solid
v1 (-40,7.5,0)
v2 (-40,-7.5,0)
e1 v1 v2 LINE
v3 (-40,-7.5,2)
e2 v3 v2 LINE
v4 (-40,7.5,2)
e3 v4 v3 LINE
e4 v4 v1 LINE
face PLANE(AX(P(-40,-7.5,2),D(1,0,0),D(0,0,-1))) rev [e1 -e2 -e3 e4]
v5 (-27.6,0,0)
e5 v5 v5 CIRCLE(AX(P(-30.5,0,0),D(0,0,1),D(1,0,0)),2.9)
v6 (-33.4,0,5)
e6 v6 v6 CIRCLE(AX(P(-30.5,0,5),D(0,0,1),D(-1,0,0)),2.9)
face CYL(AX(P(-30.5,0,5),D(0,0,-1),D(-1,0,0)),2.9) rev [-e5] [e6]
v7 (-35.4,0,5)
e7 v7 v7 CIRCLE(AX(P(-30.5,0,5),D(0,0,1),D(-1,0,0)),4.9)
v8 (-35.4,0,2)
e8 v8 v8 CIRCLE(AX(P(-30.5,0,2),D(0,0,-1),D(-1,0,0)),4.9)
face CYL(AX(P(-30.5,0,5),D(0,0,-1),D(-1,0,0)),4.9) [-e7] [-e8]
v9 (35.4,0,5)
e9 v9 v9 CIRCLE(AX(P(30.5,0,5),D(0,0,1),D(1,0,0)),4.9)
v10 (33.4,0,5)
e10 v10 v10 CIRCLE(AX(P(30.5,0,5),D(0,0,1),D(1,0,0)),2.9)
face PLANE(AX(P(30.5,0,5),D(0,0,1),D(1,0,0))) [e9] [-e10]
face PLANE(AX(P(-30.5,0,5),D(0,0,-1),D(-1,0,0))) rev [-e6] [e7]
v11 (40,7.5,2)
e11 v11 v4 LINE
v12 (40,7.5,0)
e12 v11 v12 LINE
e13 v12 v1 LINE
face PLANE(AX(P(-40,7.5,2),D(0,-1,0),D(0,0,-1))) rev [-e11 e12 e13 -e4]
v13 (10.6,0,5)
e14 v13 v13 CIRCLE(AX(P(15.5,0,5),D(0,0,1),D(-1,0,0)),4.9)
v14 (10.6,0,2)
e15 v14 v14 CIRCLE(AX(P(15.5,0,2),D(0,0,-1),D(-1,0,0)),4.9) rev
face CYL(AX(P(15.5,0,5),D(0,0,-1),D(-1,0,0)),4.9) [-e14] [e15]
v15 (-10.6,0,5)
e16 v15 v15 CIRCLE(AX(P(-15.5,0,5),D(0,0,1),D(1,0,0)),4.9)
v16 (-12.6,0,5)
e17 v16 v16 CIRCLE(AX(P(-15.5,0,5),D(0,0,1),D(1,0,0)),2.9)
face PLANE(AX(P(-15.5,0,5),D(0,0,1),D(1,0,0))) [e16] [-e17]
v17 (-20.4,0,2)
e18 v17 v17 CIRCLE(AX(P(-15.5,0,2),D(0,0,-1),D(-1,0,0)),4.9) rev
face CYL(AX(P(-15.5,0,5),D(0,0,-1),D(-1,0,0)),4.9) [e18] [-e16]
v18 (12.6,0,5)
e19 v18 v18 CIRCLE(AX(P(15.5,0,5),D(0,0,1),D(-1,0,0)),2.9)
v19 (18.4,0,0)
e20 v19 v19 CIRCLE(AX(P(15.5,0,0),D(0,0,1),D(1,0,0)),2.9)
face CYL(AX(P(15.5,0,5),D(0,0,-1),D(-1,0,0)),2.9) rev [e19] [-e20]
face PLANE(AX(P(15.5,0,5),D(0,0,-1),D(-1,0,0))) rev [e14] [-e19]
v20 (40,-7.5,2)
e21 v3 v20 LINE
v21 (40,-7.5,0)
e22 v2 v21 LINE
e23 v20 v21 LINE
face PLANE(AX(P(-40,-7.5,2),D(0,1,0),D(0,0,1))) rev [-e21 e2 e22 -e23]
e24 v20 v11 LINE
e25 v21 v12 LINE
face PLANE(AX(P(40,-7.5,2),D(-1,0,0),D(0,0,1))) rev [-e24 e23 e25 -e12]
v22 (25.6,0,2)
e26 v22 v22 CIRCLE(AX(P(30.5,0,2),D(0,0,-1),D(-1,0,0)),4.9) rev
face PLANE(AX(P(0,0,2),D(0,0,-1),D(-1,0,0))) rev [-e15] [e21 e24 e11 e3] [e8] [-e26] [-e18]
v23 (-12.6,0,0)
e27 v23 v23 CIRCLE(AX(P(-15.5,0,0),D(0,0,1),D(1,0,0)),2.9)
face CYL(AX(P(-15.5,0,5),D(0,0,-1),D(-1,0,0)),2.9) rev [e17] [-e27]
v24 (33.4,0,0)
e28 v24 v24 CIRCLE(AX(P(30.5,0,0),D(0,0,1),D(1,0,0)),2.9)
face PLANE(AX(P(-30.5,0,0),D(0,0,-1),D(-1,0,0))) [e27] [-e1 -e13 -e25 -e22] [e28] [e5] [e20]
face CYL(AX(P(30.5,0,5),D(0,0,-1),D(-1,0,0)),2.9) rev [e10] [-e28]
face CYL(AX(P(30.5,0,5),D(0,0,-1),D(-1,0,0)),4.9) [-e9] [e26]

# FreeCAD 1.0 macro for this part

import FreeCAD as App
import Part
import Sketcher
from FreeCAD import Vector

doc = App.newDocument("Part")
body = doc.addObject("PartDesign::Body", "Body")

# Sketch on XY plane
sketch1 = body.newObject("Sketcher::SketchObject", "Sketch")
sketch1.AttachmentSupport = (doc.getObject("XY_Plane"), [""])
sketch1.MapMode = "FlatFace"
sketch1.addGeometry([
    Part.Circle(Vector(-15.5, 0, 0), Vector(0, 0, 1), 4.9),
    Part.Circle(Vector(-15.5, 0, 0), Vector(0, 0, 1), 2.9),
], False)
sketch1.addConstraint([
    Sketcher.Constraint("Coincident", 1, 3, 0, 3),
    Sketcher.Constraint("PointOnObject", 0, 3, -1),
    Sketcher.Constraint("Diameter", 0, 9.8),
    Sketcher.Constraint("Diameter", 1, 5.8),
    Sketcher.Constraint("DistanceX", 0, 3, -1, 1, 15.5),
])
pad1 = body.newObject("PartDesign::Pad", "Pad")
pad1.Profile = sketch1
pad1.Length = 5
body2 = doc.addObject("PartDesign::Body", "Body001")

# Sketch on XY plane
sketch2 = body2.newObject("Sketcher::SketchObject", "Sketch001")
sketch2.AttachmentSupport = (doc.getObject("XY_Plane001"), [""])
sketch2.MapMode = "FlatFace"
sketch2.addGeometry([
    Part.Circle(Vector(-30.5, 0, 0), Vector(0, 0, 1), 4.9),
    Part.Circle(Vector(-30.5, 0, 0), Vector(0, 0, 1), 2.9),
], False)
sketch2.addConstraint([
    Sketcher.Constraint("Coincident", 1, 3, 0, 3),
    Sketcher.Constraint("PointOnObject", 0, 3, -1),
    Sketcher.Constraint("Diameter", 0, 9.8),
    Sketcher.Constraint("Diameter", 1, 5.8),
    Sketcher.Constraint("DistanceX", 0, 3, -1, 1, 30.5),
])
pad2 = body2.newObject("PartDesign::Pad", "Pad001")
pad2.Profile = sketch2
pad2.Length = 5
body3 = doc.addObject("PartDesign::Body", "Body002")

# Sketch on XY plane
sketch3 = body3.newObject("Sketcher::SketchObject", "Sketch002")
sketch3.AttachmentSupport = (doc.getObject("XY_Plane002"), [""])
sketch3.MapMode = "FlatFace"
sketch3.addGeometry([
    Part.Circle(Vector(15.5, 0, 0), Vector(0, 0, 1), 4.9),
    Part.Circle(Vector(15.5, 0, 0), Vector(0, 0, 1), 2.9),
], False)
sketch3.addConstraint([
    Sketcher.Constraint("Coincident", 1, 3, 0, 3),
    Sketcher.Constraint("PointOnObject", 0, 3, -1),
    Sketcher.Constraint("Diameter", 0, 9.8),
    Sketcher.Constraint("Diameter", 1, 5.8),
    Sketcher.Constraint("DistanceX", -1, 1, 0, 3, 15.5),
])
pad3 = body3.newObject("PartDesign::Pad", "Pad002")
pad3.Profile = sketch3
pad3.Length = 5
body4 = doc.addObject("PartDesign::Body", "Body003")

# Sketch on XY plane
sketch4 = body4.newObject("Sketcher::SketchObject", "Sketch003")
sketch4.AttachmentSupport = (doc.getObject("XY_Plane003"), [""])
sketch4.MapMode = "FlatFace"
sketch4.addGeometry([
    Part.Circle(Vector(30.5, 0, 0), Vector(0, 0, 1), 4.9),
    Part.Circle(Vector(30.5, 0, 0), Vector(0, 0, 1), 2.9),
], False)
sketch4.addConstraint([
    Sketcher.Constraint("Coincident", 1, 3, 0, 3),
    Sketcher.Constraint("PointOnObject", 0, 3, -1),
    Sketcher.Constraint("Diameter", 0, 9.8),
    Sketcher.Constraint("Diameter", 1, 5.8),
    Sketcher.Constraint("DistanceX", -1, 1, 0, 3, 30.5),
])
pad4 = body4.newObject("PartDesign::Pad", "Pad003")
pad4.Profile = sketch4
pad4.Length = 5
body.AllowCompound = True
doc.recompute()

boolean = body.newObject("PartDesign::Boolean", "Boolean")
boolean.Type = "Fuse"
boolean.addObjects([body2])
doc.recompute()

boolean2 = body.newObject("PartDesign::Boolean", "Boolean001")
boolean2.Type = "Fuse"
boolean2.addObjects([body3])
doc.recompute()

boolean3 = body.newObject("PartDesign::Boolean", "Boolean002")
boolean3.Type = "Fuse"
boolean3.addObjects([body4])

# Sketch on XY plane
sketch5 = body.newObject("Sketcher::SketchObject", "Sketch004")
sketch5.AttachmentSupport = (doc.getObject("XY_Plane"), [""])
sketch5.MapMode = "FlatFace"
sketch5.addGeometry([
    Part.LineSegment(Vector(-40, 7.5, 0), Vector(-40, -7.5, 0)),
    Part.LineSegment(Vector(-40, -7.5, 0), Vector(40, -7.5, 0)),
    Part.LineSegment(Vector(40, -7.5, 0), Vector(40, 7.5, 0)),
    Part.LineSegment(Vector(40, 7.5, 0), Vector(-40, 7.5, 0)),
], False)
sketch5.addConstraint([
    Sketcher.Constraint("Coincident", 0, 2, 1, 1),
    Sketcher.Constraint("Coincident", 1, 2, 2, 1),
    Sketcher.Constraint("Coincident", 2, 2, 3, 1),
    Sketcher.Constraint("Coincident", 3, 2, 0, 1),
    Sketcher.Constraint("Vertical", 0),
    Sketcher.Constraint("Horizontal", 1),
    Sketcher.Constraint("Vertical", 2),
    Sketcher.Constraint("Horizontal", 3),
    Sketcher.Constraint("Symmetric", 0, 2, 2, 2, -1, 1),
    Sketcher.Constraint("DistanceX", 1, 1, 1, 2, 80.0),
    Sketcher.Constraint("DistanceY", 0, 2, 0, 1, 15.0),
])
pad5 = body.newObject("PartDesign::Pad", "Pad004")
pad5.Profile = sketch5
pad5.Length = 2

# Sketch on XY plane
sketch6 = body.newObject("Sketcher::SketchObject", "Sketch005")
sketch6.AttachmentSupport = (doc.getObject("XY_Plane"), [""])
sketch6.MapMode = "FlatFace"
sketch6.AttachmentOffset = App.Placement(Vector(0, 0, 5), App.Rotation())
sketch6.addGeometry([
    Part.Circle(Vector(-30.5, 0, 0), Vector(0, 0, 1), 2.9),
    Part.Circle(Vector(-15.5, 0, 0), Vector(0, 0, 1), 2.9),
    Part.Circle(Vector(15.5, 0, 0), Vector(0, 0, 1), 2.9),
    Part.Circle(Vector(30.5, 0, 0), Vector(0, 0, 1), 2.9),
], False)
sketch6.addConstraint([
    Sketcher.Constraint("Equal", 0, 1),
    Sketcher.Constraint("Equal", 1, 2),
    Sketcher.Constraint("Equal", 2, 3),
    Sketcher.Constraint("Symmetric", 1, 3, 2, 3, -1, 1),
    Sketcher.Constraint("Symmetric", 0, 3, 3, 3, -1, 1),
    Sketcher.Constraint("PointOnObject", 0, 3, -1),
    Sketcher.Constraint("PointOnObject", 1, 3, -1),
    Sketcher.Constraint("Diameter", 0, 5.8),
    Sketcher.Constraint("DistanceX", 0, 3, 1, 3, 15.0),
    Sketcher.Constraint("DistanceX", 1, 3, 2, 3, 31.0),
])
pocket1 = body.newObject("PartDesign::Pocket", "Pocket")
pocket1.Profile = sketch6
pocket1.Type = "ThroughAll"

doc.recompute()
